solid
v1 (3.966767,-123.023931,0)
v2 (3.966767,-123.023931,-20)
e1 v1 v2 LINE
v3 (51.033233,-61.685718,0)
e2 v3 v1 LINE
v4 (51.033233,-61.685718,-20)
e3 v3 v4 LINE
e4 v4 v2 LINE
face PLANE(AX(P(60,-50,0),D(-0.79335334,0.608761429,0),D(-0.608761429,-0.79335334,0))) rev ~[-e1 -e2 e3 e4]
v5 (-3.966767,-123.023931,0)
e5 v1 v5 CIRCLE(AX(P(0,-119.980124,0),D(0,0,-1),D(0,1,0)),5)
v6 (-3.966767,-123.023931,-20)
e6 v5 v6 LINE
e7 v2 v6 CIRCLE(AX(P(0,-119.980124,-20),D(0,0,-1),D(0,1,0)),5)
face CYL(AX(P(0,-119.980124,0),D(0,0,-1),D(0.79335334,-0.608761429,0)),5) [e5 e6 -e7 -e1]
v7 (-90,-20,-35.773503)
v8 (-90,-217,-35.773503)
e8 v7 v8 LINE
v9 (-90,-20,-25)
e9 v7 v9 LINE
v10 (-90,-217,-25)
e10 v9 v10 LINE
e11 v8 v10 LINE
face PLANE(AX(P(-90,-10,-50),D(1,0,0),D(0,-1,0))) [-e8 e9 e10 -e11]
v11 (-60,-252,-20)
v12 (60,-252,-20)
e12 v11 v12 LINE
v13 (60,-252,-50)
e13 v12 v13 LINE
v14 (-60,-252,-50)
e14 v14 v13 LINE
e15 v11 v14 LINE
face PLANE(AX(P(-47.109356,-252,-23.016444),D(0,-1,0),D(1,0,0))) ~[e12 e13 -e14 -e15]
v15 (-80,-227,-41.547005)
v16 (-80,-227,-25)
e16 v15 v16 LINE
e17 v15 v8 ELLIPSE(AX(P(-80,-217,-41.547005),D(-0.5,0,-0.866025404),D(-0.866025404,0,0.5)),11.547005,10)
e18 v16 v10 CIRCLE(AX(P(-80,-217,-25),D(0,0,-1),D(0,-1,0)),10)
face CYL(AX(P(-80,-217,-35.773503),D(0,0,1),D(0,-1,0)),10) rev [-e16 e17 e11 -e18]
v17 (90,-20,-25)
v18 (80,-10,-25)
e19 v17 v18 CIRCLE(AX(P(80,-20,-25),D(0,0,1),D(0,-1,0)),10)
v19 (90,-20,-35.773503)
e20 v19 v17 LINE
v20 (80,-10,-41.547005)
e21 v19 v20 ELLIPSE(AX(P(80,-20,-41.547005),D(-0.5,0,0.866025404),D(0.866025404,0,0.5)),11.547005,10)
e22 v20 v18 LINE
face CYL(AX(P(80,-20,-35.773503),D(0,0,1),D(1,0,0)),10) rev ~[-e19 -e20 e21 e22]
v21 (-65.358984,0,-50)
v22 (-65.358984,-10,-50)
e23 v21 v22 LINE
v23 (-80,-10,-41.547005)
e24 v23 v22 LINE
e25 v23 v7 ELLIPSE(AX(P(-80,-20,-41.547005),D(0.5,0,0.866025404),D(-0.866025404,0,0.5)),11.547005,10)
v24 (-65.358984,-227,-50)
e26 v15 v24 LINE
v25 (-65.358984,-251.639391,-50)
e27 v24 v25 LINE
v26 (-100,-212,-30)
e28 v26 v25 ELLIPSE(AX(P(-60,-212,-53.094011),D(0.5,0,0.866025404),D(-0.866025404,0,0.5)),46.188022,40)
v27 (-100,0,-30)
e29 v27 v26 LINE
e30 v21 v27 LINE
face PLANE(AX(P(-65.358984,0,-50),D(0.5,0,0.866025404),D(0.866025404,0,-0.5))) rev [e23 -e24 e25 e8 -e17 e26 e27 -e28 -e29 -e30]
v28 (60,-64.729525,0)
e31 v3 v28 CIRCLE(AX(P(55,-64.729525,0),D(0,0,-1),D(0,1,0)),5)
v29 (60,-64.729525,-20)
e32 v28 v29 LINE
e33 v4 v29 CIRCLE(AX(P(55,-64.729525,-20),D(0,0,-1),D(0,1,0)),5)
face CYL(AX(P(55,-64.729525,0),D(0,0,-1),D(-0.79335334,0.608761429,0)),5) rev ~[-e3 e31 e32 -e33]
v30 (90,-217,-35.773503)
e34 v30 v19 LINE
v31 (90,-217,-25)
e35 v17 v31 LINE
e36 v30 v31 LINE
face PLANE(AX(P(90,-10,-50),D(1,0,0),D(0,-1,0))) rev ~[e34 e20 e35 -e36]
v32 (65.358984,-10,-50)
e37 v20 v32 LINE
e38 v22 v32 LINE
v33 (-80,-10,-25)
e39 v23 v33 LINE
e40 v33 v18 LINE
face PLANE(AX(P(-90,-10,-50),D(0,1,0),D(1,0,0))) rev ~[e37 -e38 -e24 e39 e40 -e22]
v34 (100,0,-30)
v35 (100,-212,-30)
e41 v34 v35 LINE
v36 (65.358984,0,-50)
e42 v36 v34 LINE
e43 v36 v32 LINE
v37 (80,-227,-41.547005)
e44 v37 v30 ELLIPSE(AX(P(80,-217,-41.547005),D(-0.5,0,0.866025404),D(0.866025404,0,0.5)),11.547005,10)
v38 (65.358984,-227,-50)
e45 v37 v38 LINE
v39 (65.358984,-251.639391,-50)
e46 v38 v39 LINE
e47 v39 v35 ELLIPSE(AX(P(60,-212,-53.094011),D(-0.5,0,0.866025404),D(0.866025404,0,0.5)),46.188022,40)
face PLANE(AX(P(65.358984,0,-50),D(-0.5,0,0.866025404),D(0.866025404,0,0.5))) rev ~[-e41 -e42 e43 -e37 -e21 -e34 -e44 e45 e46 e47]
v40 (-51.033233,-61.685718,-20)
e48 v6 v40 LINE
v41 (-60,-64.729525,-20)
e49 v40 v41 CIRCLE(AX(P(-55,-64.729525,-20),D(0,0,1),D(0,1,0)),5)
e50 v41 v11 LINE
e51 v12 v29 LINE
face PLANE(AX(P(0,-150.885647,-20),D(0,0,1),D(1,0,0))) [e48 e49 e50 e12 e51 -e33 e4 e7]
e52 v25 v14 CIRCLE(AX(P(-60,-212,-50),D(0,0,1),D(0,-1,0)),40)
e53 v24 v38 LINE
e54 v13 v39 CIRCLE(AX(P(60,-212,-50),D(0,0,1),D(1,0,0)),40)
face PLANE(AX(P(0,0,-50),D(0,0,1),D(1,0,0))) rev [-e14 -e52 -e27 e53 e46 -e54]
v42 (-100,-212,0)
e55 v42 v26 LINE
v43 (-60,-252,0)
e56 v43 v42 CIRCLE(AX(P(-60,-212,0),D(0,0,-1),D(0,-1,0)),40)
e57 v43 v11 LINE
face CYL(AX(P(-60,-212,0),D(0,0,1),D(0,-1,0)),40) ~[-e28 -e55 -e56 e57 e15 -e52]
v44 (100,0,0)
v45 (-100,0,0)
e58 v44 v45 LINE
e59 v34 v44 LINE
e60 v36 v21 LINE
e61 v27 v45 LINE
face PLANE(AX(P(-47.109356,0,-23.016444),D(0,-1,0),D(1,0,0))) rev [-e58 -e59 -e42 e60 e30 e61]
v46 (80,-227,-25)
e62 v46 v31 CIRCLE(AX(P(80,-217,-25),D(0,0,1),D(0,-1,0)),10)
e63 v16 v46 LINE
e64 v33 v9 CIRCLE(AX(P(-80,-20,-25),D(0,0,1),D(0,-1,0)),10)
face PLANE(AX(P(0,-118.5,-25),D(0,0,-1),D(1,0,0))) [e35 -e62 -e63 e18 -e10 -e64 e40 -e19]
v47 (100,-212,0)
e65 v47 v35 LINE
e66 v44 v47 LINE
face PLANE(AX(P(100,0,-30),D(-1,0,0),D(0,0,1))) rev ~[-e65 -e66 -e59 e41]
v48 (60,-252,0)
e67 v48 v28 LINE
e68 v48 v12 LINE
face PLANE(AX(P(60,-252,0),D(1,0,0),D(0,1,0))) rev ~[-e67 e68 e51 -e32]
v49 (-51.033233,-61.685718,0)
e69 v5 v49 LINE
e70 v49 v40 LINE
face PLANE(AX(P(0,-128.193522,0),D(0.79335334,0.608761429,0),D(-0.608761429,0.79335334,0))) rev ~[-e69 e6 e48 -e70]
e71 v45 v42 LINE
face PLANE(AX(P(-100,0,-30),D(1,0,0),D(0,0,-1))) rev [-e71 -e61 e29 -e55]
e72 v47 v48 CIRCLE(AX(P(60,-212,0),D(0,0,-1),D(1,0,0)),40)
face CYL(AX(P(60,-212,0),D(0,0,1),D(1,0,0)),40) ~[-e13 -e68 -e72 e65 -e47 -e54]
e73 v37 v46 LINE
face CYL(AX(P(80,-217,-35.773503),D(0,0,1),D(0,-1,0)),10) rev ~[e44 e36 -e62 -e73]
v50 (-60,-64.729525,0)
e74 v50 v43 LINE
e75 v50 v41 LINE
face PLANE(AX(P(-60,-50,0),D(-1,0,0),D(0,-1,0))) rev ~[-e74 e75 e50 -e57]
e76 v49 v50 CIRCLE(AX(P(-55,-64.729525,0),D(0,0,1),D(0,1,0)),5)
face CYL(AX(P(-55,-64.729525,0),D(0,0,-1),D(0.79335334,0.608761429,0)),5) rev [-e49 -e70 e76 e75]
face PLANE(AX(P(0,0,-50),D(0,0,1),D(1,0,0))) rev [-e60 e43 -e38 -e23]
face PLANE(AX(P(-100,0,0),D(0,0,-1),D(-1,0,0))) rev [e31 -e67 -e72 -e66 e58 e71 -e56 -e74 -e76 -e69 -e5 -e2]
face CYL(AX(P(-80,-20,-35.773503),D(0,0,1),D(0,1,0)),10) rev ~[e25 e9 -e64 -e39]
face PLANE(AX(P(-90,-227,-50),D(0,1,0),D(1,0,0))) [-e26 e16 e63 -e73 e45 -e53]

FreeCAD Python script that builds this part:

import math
import FreeCAD as App
import Part
import Sketcher
from FreeCAD import Vector
Q = App.Units.Quantity


def edges_at(feature, points):
    """Names of the edges that pass closest to the given points."""
    edges = feature.Shape.Edges
    near = lambda p: min(range(len(edges)), key=lambda i: edges[i].distToShape(Part.Vertex(*p))[0])
    return sorted({f"Edge{near(p) + 1}" for p in points})

doc = App.newDocument("Part")
body = doc.addObject("PartDesign::Body", "Body")

sketch1 = doc.addObject("Sketcher::SketchObject", "Sketch")
body.addObject(sketch1)
sketch1.AttachmentSupport = (doc.XZ_Plane, [""])
sketch1.MapMode = "FlatFace"
sketch1.addGeometry([
    Part.LineSegment(Vector(100, 0, 0), Vector(0, 0, 0)),
    Part.LineSegment(Vector(0, 0, 0), Vector(0, -50, 0)),
    Part.LineSegment(Vector(0, -50, 0), Vector(65, -50, 0)),
    Part.LineSegment(Vector(65, -50, 0), Vector(100, -30, 0)),
    Part.LineSegment(Vector(100, -30, 0), Vector(100, 0, 0)),
], False)
sketch1.addConstraint([
    Sketcher.Constraint("Coincident", 0, 2, 1, 1),
    Sketcher.Constraint("Coincident", 1, 2, 2, 1),
    Sketcher.Constraint("Coincident", 2, 2, 3, 1),
    Sketcher.Constraint("Coincident", 3, 2, 4, 1),
    Sketcher.Constraint("Coincident", 4, 2, 0, 1),
    Sketcher.Constraint("Horizontal", 0),
    Sketcher.Constraint("Vertical", 1),
    Sketcher.Constraint("Horizontal", 2),
    Sketcher.Constraint("Vertical", 4),
    Sketcher.Constraint("Coincident", 0, 2, -1, 1),
    Sketcher.Constraint("DistanceX", 0, 2, 0, 1, 100.0),
    Sketcher.Constraint("DistanceY", 1, 2, 1, 1, 50.0),
    Sketcher.Constraint("DistanceY", 4, 1, 4, 2, 30.0),
    Sketcher.Constraint("Angle", 3, Q("30 deg")),
])
pad1 = doc.addObject("PartDesign::Pad", "Pad")
body.addObject(pad1)
pad1.Profile = sketch1
pad1.Length = 252
body2 = doc.addObject("PartDesign::Body", "Body001")
doc.recompute()

body2.BaseFeature = body
doc.recompute()

mirroring = doc.addObject("Part::Mirroring", "Mirroring")
mirroring.Source = body
mirroring.Base = Vector(0, 0, 0)
mirroring.Normal = Vector(1, 0, 0)
body3 = doc.addObject("PartDesign::Body", "Body002")
body3.BaseFeature = mirroring
boolean = doc.addObject("PartDesign::Boolean", "Boolean")
body2.addObject(boolean)
boolean.Type = "Fuse"
boolean.addObjects([body3])
doc.recompute()

sketch2 = doc.addObject("Sketcher::SketchObject", "Sketch001")
body2.addObject(sketch2)
sketch2.AttachmentSupport = (doc.getObject("XY_Plane001"), [""])
sketch2.MapMode = "FlatFace"
sketch2.addGeometry([
    Part.LineSegment(Vector(-60, -252, 0), Vector(60, -252, 0)),
    Part.LineSegment(Vector(60, -252, 0), Vector(60, -50, 0)),
    Part.LineSegment(Vector(60, -50, 0), Vector(0, -128, 0)),
    Part.LineSegment(Vector(0, -128, 0), Vector(-60, -50, 0)),
    Part.LineSegment(Vector(-60, -50, 0), Vector(-60, -252, 0)),
], False)
sketch2.addConstraint([
    Sketcher.Constraint("Coincident", 0, 2, 1, 1),
    Sketcher.Constraint("Coincident", 1, 2, 2, 1),
    Sketcher.Constraint("Coincident", 2, 2, 3, 1),
    Sketcher.Constraint("Coincident", 3, 2, 4, 1),
    Sketcher.Constraint("Coincident", 4, 2, 0, 1),
    Sketcher.Constraint("Horizontal", 0),
    Sketcher.Constraint("Vertical", 1),
    Sketcher.Constraint("Vertical", 4),
    Sketcher.Constraint("Symmetric", 1, 2, 3, 2, -2),
    Sketcher.Constraint("PointOnObject", 2, 2, -2),
    Sketcher.Constraint("DistanceX", 0, 1, 0, 2, 120.0),
    Sketcher.Constraint("DistanceY", 1, 1, 1, 2, 202.0),
    Sketcher.Constraint("DistanceY", 0, 2, -1, 1, 252.0),
    Sketcher.Constraint("Angle", 2, Q("-127.5 deg")),
])
pocket1 = doc.addObject("PartDesign::Pocket", "Pocket")
body2.addObject(pocket1)
pocket1.Profile = sketch2
pocket1.Length = 20

sketch3 = doc.addObject("Sketcher::SketchObject", "Sketch002")
body2.addObject(sketch3)
sketch3.AttachmentSupport = (doc.getObject("XY_Plane001"), [""])
sketch3.MapMode = "FlatFace"
sketch3.addGeometry([
    Part.ArcOfCircle(Part.Circle(Vector(60, -212, 0), Vector(0, 0, 1), 40), math.radians(-90), math.radians(0)),
    Part.LineSegment(Vector(60, -252, 0), Vector(100, -252, 0)),
    Part.LineSegment(Vector(100, -252, 0), Vector(100, -212, 0)),
    Part.LineSegment(Vector(-100, -252, 0), Vector(-60, -252, 0)),
    Part.ArcOfCircle(Part.Circle(Vector(-60, -212, 0), Vector(0, 0, 1), 40), math.radians(180), math.radians(270)),
    Part.LineSegment(Vector(-100, -212, 0), Vector(-100, -252, 0)),
], False)
sketch3.addConstraint([
    Sketcher.Constraint("Tangent", 0, 1, 1, 1),
    Sketcher.Constraint("Coincident", 1, 2, 2, 1),
    Sketcher.Constraint("Tangent", 2, 2, 0, 2),
    Sketcher.Constraint("Tangent", 3, 2, 4, 2),
    Sketcher.Constraint("Tangent", 4, 1, 5, 1),
    Sketcher.Constraint("Coincident", 5, 2, 3, 1),
    Sketcher.Constraint("Horizontal", 1),
    Sketcher.Constraint("Vertical", 2),
    Sketcher.Constraint("Horizontal", 3),
    Sketcher.Constraint("Vertical", 5),
    Sketcher.Constraint("Equal", 0, 4),
    Sketcher.Constraint("Symmetric", 0, 3, 4, 3, -2),
    Sketcher.Constraint("Radius", 0, 40.0),
    Sketcher.Constraint("DistanceX", -1, 1, 0, 3, 60.0),
    Sketcher.Constraint("DistanceY", 0, 3, -1, 1, 212.0),
])
pocket2 = doc.addObject("PartDesign::Pocket", "Pocket001")
body2.addObject(pocket2)
pocket2.Profile = sketch3
pocket2.Type = "ThroughAll"
doc.recompute()

fillet = doc.addObject("PartDesign::Fillet", "Fillet")
body2.addObject(fillet)
fillet.Base = (pocket2, edges_at(pocket2, [(0, -128.194, -10)]))
fillet.Radius = 5
doc.recompute()

fillet2 = doc.addObject("PartDesign::Fillet", "Fillet001")
body2.addObject(fillet2)
fillet2.Base = (fillet, edges_at(fillet, [(60, -50, -10), (-60, -50, -10)]))
fillet2.Radius = 5

sketch4 = doc.addObject("Sketcher::SketchObject", "Sketch003")
body2.addObject(sketch4)
sketch4.AttachmentSupport = (doc.getObject("XY_Plane001"), [""])
sketch4.MapMode = "FlatFace"
sketch4.AttachmentOffset = App.Placement(Vector(0, 0, -50), App.Rotation())
sketch4.addGeometry([
    Part.LineSegment(Vector(-90, -227, 0), Vector(-90, -10, 0)),
    Part.LineSegment(Vector(-90, -10, 0), Vector(90, -10, 0)),
    Part.LineSegment(Vector(90, -10, 0), Vector(90, -227, 0)),
    Part.LineSegment(Vector(90, -227, 0), Vector(-90, -227, 0)),
], False)
sketch4.addConstraint([
    Sketcher.Constraint("Coincident", 0, 2, 1, 1),
    Sketcher.Constraint("Coincident", 1, 2, 2, 1),
    Sketcher.Constraint("Coincident", 2, 2, 3, 1),
    Sketcher.Constraint("Coincident", 3, 2, 0, 1),
    Sketcher.Constraint("Vertical", 0),
    Sketcher.Constraint("Horizontal", 1),
    Sketcher.Constraint("Vertical", 2),
    Sketcher.Constraint("Horizontal", 3),
    Sketcher.Constraint("DistanceX", 1, 1, 1, 2, 180.0),
    Sketcher.Constraint("DistanceY", 0, 1, 0, 2, 217.0),
    Sketcher.Constraint("DistanceX", 0, 2, -1, 1, 90.0),
    Sketcher.Constraint("DistanceY", 0, 2, -1, 1, 10.0),
])
pocket3 = doc.addObject("PartDesign::Pocket", "Pocket002")
body2.addObject(pocket3)
pocket3.Profile = sketch4
pocket3.Length = 25
pocket3.Reversed = True
doc.recompute()

fillet3 = doc.addObject("PartDesign::Fillet", "Fillet002")
body2.addObject(fillet3)
fillet3.Base = (pocket3, edges_at(pocket3, [
    (90, -10, -30.387),
    (-90, -10, -30.387),
    (-90, -227, -30.387),
    (90, -227, -30.387),
]))
fillet3.Radius = 10
mirroring.Visibility = False

doc.recompute()
